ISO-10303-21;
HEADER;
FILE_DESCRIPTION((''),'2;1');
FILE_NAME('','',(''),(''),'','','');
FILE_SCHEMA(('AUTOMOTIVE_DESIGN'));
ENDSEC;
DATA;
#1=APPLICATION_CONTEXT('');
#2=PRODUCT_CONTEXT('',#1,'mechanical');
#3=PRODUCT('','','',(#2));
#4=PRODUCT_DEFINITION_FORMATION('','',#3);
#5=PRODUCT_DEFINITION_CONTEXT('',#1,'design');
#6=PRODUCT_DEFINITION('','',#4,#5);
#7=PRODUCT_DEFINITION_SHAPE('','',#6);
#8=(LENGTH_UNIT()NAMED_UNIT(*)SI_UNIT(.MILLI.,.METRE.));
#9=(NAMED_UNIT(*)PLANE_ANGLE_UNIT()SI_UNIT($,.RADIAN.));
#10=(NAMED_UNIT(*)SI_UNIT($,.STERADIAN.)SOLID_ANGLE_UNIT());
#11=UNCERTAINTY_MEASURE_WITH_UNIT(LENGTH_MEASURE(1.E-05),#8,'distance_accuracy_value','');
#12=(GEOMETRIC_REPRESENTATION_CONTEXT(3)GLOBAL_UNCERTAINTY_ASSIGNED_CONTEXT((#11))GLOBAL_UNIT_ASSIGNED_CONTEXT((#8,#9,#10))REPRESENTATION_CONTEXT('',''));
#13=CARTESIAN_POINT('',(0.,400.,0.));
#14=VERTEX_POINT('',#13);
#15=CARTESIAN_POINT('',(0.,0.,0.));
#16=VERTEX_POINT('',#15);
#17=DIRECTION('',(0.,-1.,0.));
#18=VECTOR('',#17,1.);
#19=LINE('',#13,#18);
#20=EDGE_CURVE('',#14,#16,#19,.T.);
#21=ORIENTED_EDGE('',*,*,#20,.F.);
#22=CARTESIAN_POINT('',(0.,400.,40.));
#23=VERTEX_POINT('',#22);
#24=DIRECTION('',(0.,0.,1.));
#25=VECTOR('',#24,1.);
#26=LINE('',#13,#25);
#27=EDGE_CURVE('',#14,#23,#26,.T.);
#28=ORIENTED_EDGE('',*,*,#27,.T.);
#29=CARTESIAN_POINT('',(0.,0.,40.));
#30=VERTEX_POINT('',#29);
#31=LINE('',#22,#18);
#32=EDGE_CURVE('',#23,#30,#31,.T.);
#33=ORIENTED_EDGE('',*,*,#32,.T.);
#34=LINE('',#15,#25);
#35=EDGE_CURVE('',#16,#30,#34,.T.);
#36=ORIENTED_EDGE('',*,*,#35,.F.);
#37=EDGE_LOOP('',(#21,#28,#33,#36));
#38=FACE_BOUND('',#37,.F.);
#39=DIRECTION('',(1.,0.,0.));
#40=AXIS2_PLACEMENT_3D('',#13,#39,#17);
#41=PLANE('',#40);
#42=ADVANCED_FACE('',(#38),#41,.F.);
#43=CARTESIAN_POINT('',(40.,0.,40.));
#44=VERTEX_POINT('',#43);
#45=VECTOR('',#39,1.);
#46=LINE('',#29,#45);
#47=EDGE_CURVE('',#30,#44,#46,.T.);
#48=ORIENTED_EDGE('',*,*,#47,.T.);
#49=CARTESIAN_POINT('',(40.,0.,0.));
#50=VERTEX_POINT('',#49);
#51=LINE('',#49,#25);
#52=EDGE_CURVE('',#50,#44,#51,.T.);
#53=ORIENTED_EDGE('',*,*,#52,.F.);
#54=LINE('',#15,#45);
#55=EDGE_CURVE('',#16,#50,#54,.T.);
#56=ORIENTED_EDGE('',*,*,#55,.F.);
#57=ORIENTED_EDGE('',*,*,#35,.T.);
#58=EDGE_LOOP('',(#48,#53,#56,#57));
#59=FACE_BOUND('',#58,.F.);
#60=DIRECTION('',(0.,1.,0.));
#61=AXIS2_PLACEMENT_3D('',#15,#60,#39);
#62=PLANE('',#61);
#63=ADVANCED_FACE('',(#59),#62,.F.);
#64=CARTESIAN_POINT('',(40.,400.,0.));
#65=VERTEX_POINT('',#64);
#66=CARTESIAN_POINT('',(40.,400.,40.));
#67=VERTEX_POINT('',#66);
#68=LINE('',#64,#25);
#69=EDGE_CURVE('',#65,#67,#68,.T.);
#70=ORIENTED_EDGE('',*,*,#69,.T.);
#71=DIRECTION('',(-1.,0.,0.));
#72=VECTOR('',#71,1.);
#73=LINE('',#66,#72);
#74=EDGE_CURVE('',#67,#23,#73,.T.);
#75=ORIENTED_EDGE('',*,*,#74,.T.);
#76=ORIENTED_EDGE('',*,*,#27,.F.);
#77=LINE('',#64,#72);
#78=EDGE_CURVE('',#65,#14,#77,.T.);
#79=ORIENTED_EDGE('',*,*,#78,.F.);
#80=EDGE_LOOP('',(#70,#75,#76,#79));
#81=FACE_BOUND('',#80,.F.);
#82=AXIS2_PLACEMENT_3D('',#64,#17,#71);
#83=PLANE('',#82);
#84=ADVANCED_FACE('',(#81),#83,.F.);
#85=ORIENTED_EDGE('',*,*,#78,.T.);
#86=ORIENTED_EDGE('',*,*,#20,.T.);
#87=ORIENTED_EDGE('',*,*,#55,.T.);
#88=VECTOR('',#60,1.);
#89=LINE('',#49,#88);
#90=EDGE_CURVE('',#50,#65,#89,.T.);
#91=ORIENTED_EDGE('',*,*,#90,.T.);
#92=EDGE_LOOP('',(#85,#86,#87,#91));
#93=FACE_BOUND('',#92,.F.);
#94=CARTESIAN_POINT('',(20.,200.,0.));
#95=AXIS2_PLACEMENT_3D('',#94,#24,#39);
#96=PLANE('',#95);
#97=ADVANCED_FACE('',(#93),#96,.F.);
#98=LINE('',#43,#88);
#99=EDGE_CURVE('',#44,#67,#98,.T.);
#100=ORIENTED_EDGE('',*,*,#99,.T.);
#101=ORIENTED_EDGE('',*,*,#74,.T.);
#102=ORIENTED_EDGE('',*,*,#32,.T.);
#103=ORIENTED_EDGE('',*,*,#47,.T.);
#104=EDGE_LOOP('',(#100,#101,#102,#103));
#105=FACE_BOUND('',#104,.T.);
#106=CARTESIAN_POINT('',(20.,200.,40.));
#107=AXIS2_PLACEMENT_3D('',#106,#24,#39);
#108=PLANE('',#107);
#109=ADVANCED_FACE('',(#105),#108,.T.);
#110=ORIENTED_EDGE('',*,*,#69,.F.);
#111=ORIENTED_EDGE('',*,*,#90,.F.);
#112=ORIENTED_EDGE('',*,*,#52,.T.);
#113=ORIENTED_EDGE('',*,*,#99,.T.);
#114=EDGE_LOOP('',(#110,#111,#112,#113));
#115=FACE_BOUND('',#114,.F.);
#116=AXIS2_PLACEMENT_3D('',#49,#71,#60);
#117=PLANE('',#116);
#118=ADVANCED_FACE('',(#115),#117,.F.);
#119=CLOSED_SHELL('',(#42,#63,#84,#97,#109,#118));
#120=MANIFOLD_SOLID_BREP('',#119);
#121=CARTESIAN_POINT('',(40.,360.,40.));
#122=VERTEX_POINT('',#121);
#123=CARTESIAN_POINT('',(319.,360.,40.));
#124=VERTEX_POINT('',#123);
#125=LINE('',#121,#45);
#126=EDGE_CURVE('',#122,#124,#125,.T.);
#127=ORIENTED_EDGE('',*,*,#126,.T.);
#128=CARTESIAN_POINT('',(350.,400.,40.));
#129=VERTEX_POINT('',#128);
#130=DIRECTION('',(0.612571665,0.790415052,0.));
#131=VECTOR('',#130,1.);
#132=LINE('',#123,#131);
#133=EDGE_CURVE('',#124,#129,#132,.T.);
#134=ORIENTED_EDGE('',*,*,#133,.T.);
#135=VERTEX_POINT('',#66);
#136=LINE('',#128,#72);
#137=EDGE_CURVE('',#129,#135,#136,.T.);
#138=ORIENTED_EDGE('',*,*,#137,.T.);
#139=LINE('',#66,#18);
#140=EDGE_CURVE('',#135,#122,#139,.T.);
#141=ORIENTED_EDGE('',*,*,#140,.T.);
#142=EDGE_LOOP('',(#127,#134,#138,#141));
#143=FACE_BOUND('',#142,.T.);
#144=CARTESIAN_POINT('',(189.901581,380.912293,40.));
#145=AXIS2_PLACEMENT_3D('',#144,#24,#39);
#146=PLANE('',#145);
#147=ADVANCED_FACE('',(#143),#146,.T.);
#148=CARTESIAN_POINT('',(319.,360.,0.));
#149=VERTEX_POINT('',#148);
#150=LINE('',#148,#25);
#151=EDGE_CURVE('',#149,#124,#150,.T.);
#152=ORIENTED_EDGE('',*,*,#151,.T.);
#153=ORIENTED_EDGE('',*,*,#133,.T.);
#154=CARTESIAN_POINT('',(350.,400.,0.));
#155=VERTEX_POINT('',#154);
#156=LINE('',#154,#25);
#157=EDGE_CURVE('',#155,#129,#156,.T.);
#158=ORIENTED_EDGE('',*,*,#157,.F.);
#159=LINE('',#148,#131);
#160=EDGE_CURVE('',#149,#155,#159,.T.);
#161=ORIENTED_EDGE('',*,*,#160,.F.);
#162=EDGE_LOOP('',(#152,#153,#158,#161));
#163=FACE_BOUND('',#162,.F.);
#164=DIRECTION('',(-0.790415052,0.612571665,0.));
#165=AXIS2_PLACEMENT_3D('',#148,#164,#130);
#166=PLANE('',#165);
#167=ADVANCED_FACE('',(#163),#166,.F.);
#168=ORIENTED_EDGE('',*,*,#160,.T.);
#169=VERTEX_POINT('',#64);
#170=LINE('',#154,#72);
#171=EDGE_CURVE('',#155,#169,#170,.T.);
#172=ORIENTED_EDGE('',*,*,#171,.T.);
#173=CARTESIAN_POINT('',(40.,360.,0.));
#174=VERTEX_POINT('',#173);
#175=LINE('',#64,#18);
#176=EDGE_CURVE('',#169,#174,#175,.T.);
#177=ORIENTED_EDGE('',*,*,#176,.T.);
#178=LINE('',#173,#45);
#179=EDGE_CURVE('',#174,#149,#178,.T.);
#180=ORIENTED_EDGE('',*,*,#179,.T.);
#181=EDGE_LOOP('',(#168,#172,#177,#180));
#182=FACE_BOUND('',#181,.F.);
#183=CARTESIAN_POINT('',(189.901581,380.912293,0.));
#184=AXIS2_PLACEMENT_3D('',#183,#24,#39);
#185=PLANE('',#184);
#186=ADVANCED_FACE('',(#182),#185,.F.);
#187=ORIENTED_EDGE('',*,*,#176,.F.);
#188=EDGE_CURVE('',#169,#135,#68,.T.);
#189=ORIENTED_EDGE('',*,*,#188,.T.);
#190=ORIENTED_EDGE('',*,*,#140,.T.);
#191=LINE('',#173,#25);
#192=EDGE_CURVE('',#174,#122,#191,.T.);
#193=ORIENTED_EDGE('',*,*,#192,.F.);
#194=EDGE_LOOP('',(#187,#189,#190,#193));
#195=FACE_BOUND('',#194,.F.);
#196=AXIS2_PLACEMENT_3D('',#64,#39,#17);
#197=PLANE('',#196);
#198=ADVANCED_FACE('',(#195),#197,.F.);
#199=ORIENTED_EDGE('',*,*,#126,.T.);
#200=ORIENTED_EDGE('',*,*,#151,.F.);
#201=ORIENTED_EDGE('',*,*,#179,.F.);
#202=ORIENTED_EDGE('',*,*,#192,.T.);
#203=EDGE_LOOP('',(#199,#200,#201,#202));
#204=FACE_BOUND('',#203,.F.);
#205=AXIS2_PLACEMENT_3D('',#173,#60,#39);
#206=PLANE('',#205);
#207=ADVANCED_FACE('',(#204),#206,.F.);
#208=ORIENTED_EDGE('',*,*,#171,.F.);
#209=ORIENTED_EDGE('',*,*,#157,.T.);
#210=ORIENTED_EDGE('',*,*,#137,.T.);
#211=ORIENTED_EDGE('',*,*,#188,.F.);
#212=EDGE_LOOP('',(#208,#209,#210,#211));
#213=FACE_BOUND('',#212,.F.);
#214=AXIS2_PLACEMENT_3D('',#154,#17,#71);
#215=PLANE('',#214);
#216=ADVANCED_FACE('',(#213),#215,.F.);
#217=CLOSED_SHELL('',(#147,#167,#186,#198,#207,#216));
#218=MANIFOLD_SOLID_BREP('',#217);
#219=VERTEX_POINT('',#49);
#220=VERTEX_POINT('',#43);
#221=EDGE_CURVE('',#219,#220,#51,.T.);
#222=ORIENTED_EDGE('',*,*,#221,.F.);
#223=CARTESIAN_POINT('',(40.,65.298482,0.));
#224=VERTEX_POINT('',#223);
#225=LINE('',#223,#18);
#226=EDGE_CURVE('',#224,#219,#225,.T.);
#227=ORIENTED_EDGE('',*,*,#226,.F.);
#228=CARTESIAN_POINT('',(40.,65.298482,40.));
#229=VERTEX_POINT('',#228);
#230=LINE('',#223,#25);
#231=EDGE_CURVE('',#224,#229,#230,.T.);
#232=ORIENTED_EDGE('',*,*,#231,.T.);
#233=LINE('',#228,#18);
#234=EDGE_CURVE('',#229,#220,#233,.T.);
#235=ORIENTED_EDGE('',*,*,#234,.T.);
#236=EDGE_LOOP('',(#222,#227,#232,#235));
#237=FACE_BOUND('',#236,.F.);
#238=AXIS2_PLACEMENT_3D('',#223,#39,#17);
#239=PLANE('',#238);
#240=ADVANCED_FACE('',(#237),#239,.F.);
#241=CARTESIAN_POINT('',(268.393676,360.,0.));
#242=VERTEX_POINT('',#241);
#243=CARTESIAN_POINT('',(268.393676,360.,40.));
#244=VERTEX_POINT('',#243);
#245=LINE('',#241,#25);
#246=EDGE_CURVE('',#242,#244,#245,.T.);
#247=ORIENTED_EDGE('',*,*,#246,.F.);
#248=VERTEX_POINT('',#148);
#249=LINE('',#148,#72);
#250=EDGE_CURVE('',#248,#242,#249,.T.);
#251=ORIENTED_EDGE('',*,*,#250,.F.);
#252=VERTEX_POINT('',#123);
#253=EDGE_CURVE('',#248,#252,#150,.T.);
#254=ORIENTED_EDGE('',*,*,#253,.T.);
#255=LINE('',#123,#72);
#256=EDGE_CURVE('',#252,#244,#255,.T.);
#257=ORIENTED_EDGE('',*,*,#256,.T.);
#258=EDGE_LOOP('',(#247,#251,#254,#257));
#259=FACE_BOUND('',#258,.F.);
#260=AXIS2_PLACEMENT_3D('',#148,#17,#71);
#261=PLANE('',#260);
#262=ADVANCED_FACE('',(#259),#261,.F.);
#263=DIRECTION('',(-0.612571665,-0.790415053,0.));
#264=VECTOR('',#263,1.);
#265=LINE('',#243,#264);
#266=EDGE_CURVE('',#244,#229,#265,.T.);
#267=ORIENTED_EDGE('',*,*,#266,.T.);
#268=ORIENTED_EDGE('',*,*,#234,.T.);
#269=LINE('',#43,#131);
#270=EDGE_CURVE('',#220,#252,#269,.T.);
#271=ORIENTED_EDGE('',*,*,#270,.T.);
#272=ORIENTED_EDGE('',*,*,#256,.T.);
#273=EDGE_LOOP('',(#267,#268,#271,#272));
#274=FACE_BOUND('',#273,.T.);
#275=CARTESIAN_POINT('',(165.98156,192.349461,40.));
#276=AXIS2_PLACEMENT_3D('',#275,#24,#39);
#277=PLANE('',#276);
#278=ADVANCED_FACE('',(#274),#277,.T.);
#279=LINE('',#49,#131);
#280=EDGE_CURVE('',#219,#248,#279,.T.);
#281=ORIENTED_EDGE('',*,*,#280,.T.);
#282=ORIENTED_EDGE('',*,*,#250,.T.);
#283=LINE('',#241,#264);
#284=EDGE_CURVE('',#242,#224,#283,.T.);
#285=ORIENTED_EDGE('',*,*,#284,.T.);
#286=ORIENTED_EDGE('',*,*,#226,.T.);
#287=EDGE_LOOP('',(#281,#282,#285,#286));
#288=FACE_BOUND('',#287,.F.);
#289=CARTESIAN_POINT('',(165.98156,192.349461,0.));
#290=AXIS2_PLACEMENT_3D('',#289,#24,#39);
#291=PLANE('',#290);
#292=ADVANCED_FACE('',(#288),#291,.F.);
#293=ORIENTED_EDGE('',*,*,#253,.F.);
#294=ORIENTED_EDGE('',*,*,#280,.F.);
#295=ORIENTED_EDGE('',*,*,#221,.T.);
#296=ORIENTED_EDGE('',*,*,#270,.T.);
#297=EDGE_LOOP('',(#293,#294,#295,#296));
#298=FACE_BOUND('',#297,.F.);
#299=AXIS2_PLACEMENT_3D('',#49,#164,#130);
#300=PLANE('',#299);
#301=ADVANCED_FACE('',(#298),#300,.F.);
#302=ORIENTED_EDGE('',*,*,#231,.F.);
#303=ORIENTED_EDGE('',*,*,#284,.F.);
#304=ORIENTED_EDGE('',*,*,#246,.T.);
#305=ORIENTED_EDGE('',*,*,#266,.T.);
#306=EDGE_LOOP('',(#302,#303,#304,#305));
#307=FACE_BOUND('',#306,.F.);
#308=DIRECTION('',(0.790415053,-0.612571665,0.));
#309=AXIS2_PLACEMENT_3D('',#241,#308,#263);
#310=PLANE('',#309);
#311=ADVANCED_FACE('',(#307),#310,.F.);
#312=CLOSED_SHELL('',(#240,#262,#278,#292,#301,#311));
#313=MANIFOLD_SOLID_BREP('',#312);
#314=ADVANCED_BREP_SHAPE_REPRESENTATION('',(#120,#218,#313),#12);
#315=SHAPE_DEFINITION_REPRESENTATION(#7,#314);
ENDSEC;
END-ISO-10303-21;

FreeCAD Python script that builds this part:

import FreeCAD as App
import Part
import Sketcher
from FreeCAD import Vector
Q = App.Units.Quantity

doc = App.newDocument("Part")
body = doc.addObject("PartDesign::Body", "Body")

sketch1 = body.newObject("Sketcher::SketchObject", "Sketch")
sketch1.AttachmentSupport = (doc.getObject("XY_Plane"), [""])
sketch1.MapMode = "FlatFace"
sketch1.addGeometry([
    Part.LineSegment(Vector(350, 400, 0), Vector(40, 400, 0)),
    Part.LineSegment(Vector(40, 400, 0), Vector(40, 360, 0)),
    Part.LineSegment(Vector(40, 360, 0), Vector(319, 360, 0)),
    Part.LineSegment(Vector(319, 360, 0), Vector(350, 400, 0)),
], False)
sketch1.addConstraint([
    Sketcher.Constraint("Coincident", 0, 2, 1, 1),
    Sketcher.Constraint("Coincident", 1, 2, 2, 1),
    Sketcher.Constraint("Coincident", 2, 2, 3, 1),
    Sketcher.Constraint("Coincident", 3, 2, 0, 1),
    Sketcher.Constraint("Horizontal", 0),
    Sketcher.Constraint("Vertical", 1),
    Sketcher.Constraint("Horizontal", 2),
    Sketcher.Constraint("DistanceX", 0, 2, 0, 1, Q("310 mm")),
    Sketcher.Constraint("DistanceX", 2, 1, 2, 2, Q("279 mm")),
    Sketcher.Constraint("DistanceY", 1, 2, 1, 1, Q("40 mm")),
    Sketcher.Constraint("DistanceX", -1, 1, 0, 2, Q("40 mm")),
    Sketcher.Constraint("DistanceY", -1, 1, 0, 2, Q("400 mm")),
])
pad1 = body.newObject("PartDesign::Pad", "Pad")
pad1.Profile = sketch1
pad1.Length = 40
body2 = doc.addObject("PartDesign::Body", "Body001")

sketch2 = body2.newObject("Sketcher::SketchObject", "Sketch001")
sketch2.AttachmentSupport = (doc.getObject("XY_Plane001"), [""])
sketch2.MapMode = "FlatFace"
sketch2.addGeometry([
    Part.LineSegment(Vector(40, 65, 0), Vector(40, 0, 0)),
    Part.LineSegment(Vector(40, 0, 0), Vector(319, 360, 0)),
    Part.LineSegment(Vector(319, 360, 0), Vector(268, 360, 0)),
    Part.LineSegment(Vector(268, 360, 0), Vector(40, 65, 0)),
], False)
sketch2.addConstraint([
    Sketcher.Constraint("Coincident", 0, 2, 1, 1),
    Sketcher.Constraint("Coincident", 1, 2, 2, 1),
    Sketcher.Constraint("Coincident", 2, 2, 3, 1),
    Sketcher.Constraint("Coincident", 3, 2, 0, 1),
    Sketcher.Constraint("Vertical", 0),
    Sketcher.Constraint("Horizontal", 2),
    Sketcher.Constraint("PointOnObject", 0, 2, -1),
    Sketcher.Constraint("Parallel", 1, 3),
    Sketcher.Constraint("DistanceX", -1, 1, 0, 2, Q("40 mm")),
    Sketcher.Constraint("DistanceX", -1, 1, 1, 2, Q("319 mm")),
    Sketcher.Constraint("DistanceY", -1, 1, 1, 2, Q("360 mm")),
    Sketcher.Constraint("Distance", 3, Q("372.84401 mm")),
])
pad2 = body2.newObject("PartDesign::Pad", "Pad001")
pad2.Profile = sketch2
pad2.Length = 40
body3 = doc.addObject("PartDesign::Body", "Body002")

sketch3 = body3.newObject("Sketcher::SketchObject", "Sketch002")
sketch3.AttachmentSupport = (doc.getObject("XY_Plane002"), [""])
sketch3.MapMode = "FlatFace"
sketch3.addGeometry([
    Part.LineSegment(Vector(0, 400, 0), Vector(0, 0, 0)),
    Part.LineSegment(Vector(0, 0, 0), Vector(40, 0, 0)),
    Part.LineSegment(Vector(40, 0, 0), Vector(40, 400, 0)),
    Part.LineSegment(Vector(40, 400, 0), Vector(0, 400, 0)),
], False)
sketch3.addConstraint([
    Sketcher.Constraint("Coincident", 0, 2, 1, 1),
    Sketcher.Constraint("Coincident", 1, 2, 2, 1),
    Sketcher.Constraint("Coincident", 2, 2, 3, 1),
    Sketcher.Constraint("Coincident", 3, 2, 0, 1),
    Sketcher.Constraint("Vertical", 0),
    Sketcher.Constraint("Horizontal", 1),
    Sketcher.Constraint("Vertical", 2),
    Sketcher.Constraint("Horizontal", 3),
    Sketcher.Constraint("Coincident", 0, 2, -1, 1),
    Sketcher.Constraint("DistanceX", 1, 1, 1, 2, Q("40 mm")),
    Sketcher.Constraint("DistanceY", 0, 2, 0, 1, Q("400 mm")),
])
pad3 = body3.newObject("PartDesign::Pad", "Pad002")
pad3.Profile = sketch3
pad3.Length = 40

doc.recompute()
